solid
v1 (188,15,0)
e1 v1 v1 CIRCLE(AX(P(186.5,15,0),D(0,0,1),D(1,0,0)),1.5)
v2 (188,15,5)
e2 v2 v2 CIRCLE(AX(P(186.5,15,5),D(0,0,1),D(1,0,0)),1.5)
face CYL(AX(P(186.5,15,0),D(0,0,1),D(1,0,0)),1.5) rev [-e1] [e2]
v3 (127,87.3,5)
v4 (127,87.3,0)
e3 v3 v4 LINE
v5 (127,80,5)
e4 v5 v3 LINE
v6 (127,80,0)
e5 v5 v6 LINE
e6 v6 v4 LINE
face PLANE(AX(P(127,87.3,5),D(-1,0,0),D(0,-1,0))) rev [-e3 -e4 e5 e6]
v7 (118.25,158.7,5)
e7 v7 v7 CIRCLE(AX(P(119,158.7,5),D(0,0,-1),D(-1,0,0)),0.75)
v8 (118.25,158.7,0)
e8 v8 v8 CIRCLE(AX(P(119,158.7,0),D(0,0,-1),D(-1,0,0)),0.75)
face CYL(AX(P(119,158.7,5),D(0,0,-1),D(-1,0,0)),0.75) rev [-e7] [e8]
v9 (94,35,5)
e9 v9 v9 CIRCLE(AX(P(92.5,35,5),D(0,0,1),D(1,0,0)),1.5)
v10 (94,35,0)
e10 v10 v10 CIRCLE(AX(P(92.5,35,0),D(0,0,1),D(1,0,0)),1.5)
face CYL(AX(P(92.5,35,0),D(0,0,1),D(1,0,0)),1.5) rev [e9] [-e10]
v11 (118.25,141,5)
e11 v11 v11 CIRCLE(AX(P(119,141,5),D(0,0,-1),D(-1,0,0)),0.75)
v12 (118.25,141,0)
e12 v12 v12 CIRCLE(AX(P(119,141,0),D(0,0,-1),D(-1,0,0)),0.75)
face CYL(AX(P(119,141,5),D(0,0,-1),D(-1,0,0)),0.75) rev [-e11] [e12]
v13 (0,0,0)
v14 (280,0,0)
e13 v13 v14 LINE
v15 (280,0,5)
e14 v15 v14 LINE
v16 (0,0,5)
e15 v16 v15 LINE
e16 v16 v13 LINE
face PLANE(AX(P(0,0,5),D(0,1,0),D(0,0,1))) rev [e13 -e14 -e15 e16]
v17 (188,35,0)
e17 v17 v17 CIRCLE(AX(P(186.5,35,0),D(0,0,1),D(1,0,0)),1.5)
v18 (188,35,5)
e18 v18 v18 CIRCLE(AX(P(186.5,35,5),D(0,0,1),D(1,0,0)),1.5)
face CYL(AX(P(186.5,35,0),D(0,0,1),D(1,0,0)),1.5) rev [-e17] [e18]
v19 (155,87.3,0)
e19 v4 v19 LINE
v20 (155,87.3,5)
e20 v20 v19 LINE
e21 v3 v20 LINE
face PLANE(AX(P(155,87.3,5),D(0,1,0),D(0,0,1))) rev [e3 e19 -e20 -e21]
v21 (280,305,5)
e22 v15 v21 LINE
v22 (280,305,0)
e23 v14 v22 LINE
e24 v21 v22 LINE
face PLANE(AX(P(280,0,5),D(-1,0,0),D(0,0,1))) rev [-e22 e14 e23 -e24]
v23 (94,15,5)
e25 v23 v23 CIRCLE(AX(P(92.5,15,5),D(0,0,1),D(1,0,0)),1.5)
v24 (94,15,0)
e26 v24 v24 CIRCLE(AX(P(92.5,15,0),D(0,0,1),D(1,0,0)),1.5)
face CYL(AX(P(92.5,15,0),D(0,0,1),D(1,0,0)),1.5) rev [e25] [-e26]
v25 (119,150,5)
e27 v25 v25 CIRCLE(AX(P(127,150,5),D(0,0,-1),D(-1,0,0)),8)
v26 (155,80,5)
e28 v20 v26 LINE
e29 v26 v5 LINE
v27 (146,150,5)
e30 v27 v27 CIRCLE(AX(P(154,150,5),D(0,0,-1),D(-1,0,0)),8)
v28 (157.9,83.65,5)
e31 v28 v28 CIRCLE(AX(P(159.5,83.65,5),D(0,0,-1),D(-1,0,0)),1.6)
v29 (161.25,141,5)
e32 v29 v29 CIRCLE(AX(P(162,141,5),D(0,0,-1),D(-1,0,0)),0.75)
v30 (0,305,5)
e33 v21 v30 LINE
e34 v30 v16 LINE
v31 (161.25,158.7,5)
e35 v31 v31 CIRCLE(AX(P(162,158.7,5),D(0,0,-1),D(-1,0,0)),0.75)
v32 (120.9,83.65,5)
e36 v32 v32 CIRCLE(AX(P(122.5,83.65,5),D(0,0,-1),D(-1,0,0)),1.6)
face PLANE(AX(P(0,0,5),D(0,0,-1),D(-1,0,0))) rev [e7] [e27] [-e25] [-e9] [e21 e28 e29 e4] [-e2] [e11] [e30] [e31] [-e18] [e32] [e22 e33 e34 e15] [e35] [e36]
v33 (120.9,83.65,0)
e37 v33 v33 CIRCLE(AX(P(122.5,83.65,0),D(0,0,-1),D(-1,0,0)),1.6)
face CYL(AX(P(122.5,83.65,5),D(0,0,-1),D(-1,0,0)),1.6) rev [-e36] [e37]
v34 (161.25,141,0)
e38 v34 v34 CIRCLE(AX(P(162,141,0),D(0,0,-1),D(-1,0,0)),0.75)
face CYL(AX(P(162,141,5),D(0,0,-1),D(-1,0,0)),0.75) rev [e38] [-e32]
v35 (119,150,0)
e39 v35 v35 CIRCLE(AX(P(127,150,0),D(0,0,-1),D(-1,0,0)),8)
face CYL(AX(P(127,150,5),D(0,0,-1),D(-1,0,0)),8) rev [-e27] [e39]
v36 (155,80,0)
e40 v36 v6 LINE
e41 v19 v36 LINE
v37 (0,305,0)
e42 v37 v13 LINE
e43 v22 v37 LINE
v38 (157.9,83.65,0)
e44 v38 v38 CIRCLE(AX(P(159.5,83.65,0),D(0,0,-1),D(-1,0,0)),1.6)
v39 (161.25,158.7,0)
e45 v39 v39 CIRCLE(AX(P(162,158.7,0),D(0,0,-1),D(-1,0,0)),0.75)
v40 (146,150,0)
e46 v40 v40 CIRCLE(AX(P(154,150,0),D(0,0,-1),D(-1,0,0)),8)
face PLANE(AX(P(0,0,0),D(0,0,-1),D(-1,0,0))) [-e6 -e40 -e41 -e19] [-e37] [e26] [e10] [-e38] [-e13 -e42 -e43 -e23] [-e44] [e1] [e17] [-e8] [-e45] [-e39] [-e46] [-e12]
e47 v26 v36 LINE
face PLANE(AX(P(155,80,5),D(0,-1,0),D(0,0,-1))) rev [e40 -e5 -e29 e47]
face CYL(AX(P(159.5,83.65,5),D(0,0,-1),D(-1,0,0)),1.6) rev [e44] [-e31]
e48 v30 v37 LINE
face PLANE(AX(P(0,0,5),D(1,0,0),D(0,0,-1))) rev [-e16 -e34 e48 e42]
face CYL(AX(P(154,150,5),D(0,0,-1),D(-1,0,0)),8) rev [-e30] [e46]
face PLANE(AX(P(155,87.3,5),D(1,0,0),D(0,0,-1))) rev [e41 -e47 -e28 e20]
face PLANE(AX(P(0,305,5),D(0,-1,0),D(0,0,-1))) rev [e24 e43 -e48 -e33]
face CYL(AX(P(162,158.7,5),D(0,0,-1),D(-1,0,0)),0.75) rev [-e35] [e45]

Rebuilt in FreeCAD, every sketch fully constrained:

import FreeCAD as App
import Part
import Sketcher


def add_polygon(sketch, points):
    """Adds a closed chain of lines whose ends are joined by coincident constraints."""
    first, n = sketch.GeometryCount, len(points)
    for a, b in zip(points, points[1:] + points[:1]):
        sketch.addGeometry(Part.LineSegment(App.Vector(*a, 0), App.Vector(*b, 0)), False)
    for i in range(n):
        sketch.addConstraint(Sketcher.Constraint("Coincident", first + i, 2, first + (i + 1) % n, 1))

doc = App.newDocument("Part")
body = doc.addObject("PartDesign::Body", "Body")

# Sketch on XY plane
sketch1 = body.newObject("Sketcher::SketchObject", "Sketch")
sketch1.AttachmentSupport = (doc.getObject("XY_Plane"), [""])
sketch1.MapMode = "FlatFace"
add_polygon(sketch1, [(0, 305), (0, 0), (280, 0), (280, 305)])  # lines 0-3
sketch1.addConstraint([
    Sketcher.Constraint("Vertical", 0),
    Sketcher.Constraint("Horizontal", 1),
    Sketcher.Constraint("Vertical", 2),
    Sketcher.Constraint("Horizontal", 3),
    Sketcher.Constraint("Coincident", 0, 2, -1, 1),
    Sketcher.Constraint("DistanceX", 1, 1, 1, 2, 280.0),
    Sketcher.Constraint("DistanceY", 0, 2, 0, 1, 305.0),
])
pad1 = body.newObject("PartDesign::Pad", "Pad")
pad1.Profile = sketch1
pad1.Length = 5

# Sketch on XY plane
sketch2 = body.newObject("Sketcher::SketchObject", "Sketch001")
sketch2.AttachmentSupport = (doc.getObject("XY_Plane"), [""])
sketch2.MapMode = "FlatFace"
sketch2.AttachmentOffset = App.Placement(App.Vector(0, 0, 5), App.Rotation())
sketch2.addGeometry([
    Part.Circle(App.Vector(92.5, 35, 0), App.Vector(0, 0, 1), 1.5),
    Part.Circle(App.Vector(92.5, 15, 0), App.Vector(0, 0, 1), 1.5),
    Part.Circle(App.Vector(186.5, 35, 0), App.Vector(0, 0, 1), 1.5),
    Part.Circle(App.Vector(186.5, 15, 0), App.Vector(0, 0, 1), 1.5),
], False)
sketch2.addConstraint([
    Sketcher.Constraint("Equal", 0, 1),
    Sketcher.Constraint("Equal", 1, 2),
    Sketcher.Constraint("Equal", 2, 3),
    Sketcher.Constraint("Horizontal", 0, 3, 2, 3),
    Sketcher.Constraint("Horizontal", 1, 3, 3, 3),
    Sketcher.Constraint("Vertical", 0, 3, 1, 3),
    Sketcher.Constraint("Vertical", 2, 3, 3, 3),
    Sketcher.Constraint("Diameter", 0, 3.0),
    Sketcher.Constraint("DistanceY", -1, 1, 0, 3, 35.0),
    Sketcher.Constraint("DistanceY", -1, 1, 1, 3, 15.0),
    Sketcher.Constraint("DistanceX", 0, 3, 2, 3, 94.0),
    Sketcher.Constraint("DistanceX", -1, 1, 0, 3, 92.5),
])
pocket1 = body.newObject("PartDesign::Pocket", "Pocket")
pocket1.Profile = sketch2
pocket1.Type = "ThroughAll"

# Sketch on XY plane
sketch3 = body.newObject("Sketcher::SketchObject", "Sketch002")
sketch3.AttachmentSupport = (doc.getObject("XY_Plane"), [""])
sketch3.MapMode = "FlatFace"
sketch3.AttachmentOffset = App.Placement(App.Vector(0, 0, 5), App.Rotation())
sketch3.addGeometry([
    Part.Circle(App.Vector(187.5, 758.8, 0), App.Vector(0, 0, 1), 1.5),
    Part.Circle(App.Vector(187.5, 778.8, 0), App.Vector(0, 0, 1), 1.5),
    Part.Circle(App.Vector(93.5, 758.8, 0), App.Vector(0, 0, 1), 1.5),
    Part.Circle(App.Vector(93.5, 778.8, 0), App.Vector(0, 0, 1), 1.5),
], False)
sketch3.addConstraint([
    Sketcher.Constraint("Equal", 0, 1),
    Sketcher.Constraint("Equal", 1, 2),
    Sketcher.Constraint("Equal", 2, 3),
    Sketcher.Constraint("Horizontal", 0, 3, 2, 3),
    Sketcher.Constraint("Horizontal", 1, 3, 3, 3),
    Sketcher.Constraint("Vertical", 0, 3, 1, 3),
    Sketcher.Constraint("Vertical", 2, 3, 3, 3),
    Sketcher.Constraint("Diameter", 0, 3.0),
    Sketcher.Constraint("DistanceY", 0, 3, 1, 3, 20.0),
    Sketcher.Constraint("DistanceX", 2, 3, 0, 3, 94.0),
    Sketcher.Constraint("DistanceX", -1, 1, 0, 3, 187.5),
    Sketcher.Constraint("DistanceY", -1, 1, 0, 3, 758.805531),
])
pocket2 = body.newObject("PartDesign::Pocket", "Pocket001")
pocket2.Profile = sketch3
pocket2.Type = "ThroughAll"

# Sketch on XY plane
sketch4 = body.newObject("Sketcher::SketchObject", "Sketch003")
sketch4.AttachmentSupport = (doc.getObject("XY_Plane"), [""])
sketch4.MapMode = "FlatFace"
sketch4.addGeometry(Part.Circle(App.Vector(159.5, 83.7, 0), App.Vector(0, 0, 1), 1.6), False)  # 0
sketch4.addGeometry(Part.Circle(App.Vector(122.5, 83.7, 0), App.Vector(0, 0, 1), 1.6), False)  # 1
add_polygon(sketch4, [(155, 87.3), (155, 80), (127, 80), (127, 87.3)])  # lines 2-5
sketch4.addConstraint([
    Sketcher.Constraint("Vertical", 2),
    Sketcher.Constraint("Horizontal", 3),
    Sketcher.Constraint("Vertical", 4),
    Sketcher.Constraint("Horizontal", 5),
    Sketcher.Constraint("Equal", 0, 1),
    Sketcher.Constraint("Horizontal", 0, 3, 1, 3),
    Sketcher.Constraint("Diameter", 0, 3.2),
    Sketcher.Constraint("DistanceX", 3, 2, 3, 1, 28.0),
    Sketcher.Constraint("DistanceY", 2, 2, 2, 1, 7.3),
    Sketcher.Constraint("DistanceX", -1, 1, 2, 2, 155.0),
    Sketcher.Constraint("DistanceY", -1, 1, 2, 2, 80.0),
    Sketcher.Constraint("DistanceX", 1, 3, 0, 3, 37.0),
    Sketcher.Constraint("DistanceX", -1, 1, 0, 3, 159.5),
    Sketcher.Constraint("DistanceY", -1, 1, 0, 3, 83.65),
])
pocket3 = body.newObject("PartDesign::Pocket", "Pocket002")
pocket3.Profile = sketch4
pocket3.Type = "ThroughAll"
pocket3.Reversed = True

# Sketch on XY plane
sketch5 = body.newObject("Sketcher::SketchObject", "Sketch004")
sketch5.AttachmentSupport = (doc.getObject("XY_Plane"), [""])
sketch5.MapMode = "FlatFace"
sketch5.addGeometry([
    Part.Circle(App.Vector(154, 150, 0), App.Vector(0, 0, 1), 8),  # 0
    Part.Circle(App.Vector(127, 150, 0), App.Vector(0, 0, 1), 8),  # 1
    Part.Circle(App.Vector(119, 158.7, 0), App.Vector(0, 0, 1), 0.8),  # 2
    Part.Circle(App.Vector(162, 158.7, 0), App.Vector(0, 0, 1), 0.8),  # 3
    Part.Circle(App.Vector(162, 141, 0), App.Vector(0, 0, 1), 0.8),  # 4
    Part.Circle(App.Vector(119, 141, 0), App.Vector(0, 0, 1), 0.8),  # 5
], False)
sketch5.addConstraint([
    Sketcher.Constraint("Equal", 0, 1),
    Sketcher.Constraint("Equal", 2, 3),
    Sketcher.Constraint("Equal", 3, 4),
    Sketcher.Constraint("Equal", 4, 5),
    Sketcher.Constraint("Horizontal", 0, 3, 1, 3),
    Sketcher.Constraint("Horizontal", 2, 3, 3, 3),
    Sketcher.Constraint("Horizontal", 4, 3, 5, 3),
    Sketcher.Constraint("Vertical", 3, 3, 4, 3),
    Sketcher.Constraint("Vertical", 2, 3, 5, 3),
    Sketcher.Constraint("Diameter", 0, 16.0),
    Sketcher.Constraint("Diameter", 2, 1.5),
    Sketcher.Constraint("DistanceX", -1, 1, 0, 3, 154.0),
    Sketcher.Constraint("DistanceY", -1, 1, 0, 3, 150.0),
    Sketcher.Constraint("DistanceX", -1, 1, 1, 3, 127.0),
    Sketcher.Constraint("DistanceX", -1, 1, 2, 3, 119.0),
    Sketcher.Constraint("DistanceX", -1, 1, 3, 3, 162.0),
    Sketcher.Constraint("DistanceY", -1, 1, 4, 3, 141.0),
    Sketcher.Constraint("DistanceY", -1, 1, 2, 3, 158.7),
])
pocket4 = body.newObject("PartDesign::Pocket", "Pocket003")
pocket4.Profile = sketch5
pocket4.Type = "ThroughAll"
pocket4.Reversed = True

doc.recompute()
